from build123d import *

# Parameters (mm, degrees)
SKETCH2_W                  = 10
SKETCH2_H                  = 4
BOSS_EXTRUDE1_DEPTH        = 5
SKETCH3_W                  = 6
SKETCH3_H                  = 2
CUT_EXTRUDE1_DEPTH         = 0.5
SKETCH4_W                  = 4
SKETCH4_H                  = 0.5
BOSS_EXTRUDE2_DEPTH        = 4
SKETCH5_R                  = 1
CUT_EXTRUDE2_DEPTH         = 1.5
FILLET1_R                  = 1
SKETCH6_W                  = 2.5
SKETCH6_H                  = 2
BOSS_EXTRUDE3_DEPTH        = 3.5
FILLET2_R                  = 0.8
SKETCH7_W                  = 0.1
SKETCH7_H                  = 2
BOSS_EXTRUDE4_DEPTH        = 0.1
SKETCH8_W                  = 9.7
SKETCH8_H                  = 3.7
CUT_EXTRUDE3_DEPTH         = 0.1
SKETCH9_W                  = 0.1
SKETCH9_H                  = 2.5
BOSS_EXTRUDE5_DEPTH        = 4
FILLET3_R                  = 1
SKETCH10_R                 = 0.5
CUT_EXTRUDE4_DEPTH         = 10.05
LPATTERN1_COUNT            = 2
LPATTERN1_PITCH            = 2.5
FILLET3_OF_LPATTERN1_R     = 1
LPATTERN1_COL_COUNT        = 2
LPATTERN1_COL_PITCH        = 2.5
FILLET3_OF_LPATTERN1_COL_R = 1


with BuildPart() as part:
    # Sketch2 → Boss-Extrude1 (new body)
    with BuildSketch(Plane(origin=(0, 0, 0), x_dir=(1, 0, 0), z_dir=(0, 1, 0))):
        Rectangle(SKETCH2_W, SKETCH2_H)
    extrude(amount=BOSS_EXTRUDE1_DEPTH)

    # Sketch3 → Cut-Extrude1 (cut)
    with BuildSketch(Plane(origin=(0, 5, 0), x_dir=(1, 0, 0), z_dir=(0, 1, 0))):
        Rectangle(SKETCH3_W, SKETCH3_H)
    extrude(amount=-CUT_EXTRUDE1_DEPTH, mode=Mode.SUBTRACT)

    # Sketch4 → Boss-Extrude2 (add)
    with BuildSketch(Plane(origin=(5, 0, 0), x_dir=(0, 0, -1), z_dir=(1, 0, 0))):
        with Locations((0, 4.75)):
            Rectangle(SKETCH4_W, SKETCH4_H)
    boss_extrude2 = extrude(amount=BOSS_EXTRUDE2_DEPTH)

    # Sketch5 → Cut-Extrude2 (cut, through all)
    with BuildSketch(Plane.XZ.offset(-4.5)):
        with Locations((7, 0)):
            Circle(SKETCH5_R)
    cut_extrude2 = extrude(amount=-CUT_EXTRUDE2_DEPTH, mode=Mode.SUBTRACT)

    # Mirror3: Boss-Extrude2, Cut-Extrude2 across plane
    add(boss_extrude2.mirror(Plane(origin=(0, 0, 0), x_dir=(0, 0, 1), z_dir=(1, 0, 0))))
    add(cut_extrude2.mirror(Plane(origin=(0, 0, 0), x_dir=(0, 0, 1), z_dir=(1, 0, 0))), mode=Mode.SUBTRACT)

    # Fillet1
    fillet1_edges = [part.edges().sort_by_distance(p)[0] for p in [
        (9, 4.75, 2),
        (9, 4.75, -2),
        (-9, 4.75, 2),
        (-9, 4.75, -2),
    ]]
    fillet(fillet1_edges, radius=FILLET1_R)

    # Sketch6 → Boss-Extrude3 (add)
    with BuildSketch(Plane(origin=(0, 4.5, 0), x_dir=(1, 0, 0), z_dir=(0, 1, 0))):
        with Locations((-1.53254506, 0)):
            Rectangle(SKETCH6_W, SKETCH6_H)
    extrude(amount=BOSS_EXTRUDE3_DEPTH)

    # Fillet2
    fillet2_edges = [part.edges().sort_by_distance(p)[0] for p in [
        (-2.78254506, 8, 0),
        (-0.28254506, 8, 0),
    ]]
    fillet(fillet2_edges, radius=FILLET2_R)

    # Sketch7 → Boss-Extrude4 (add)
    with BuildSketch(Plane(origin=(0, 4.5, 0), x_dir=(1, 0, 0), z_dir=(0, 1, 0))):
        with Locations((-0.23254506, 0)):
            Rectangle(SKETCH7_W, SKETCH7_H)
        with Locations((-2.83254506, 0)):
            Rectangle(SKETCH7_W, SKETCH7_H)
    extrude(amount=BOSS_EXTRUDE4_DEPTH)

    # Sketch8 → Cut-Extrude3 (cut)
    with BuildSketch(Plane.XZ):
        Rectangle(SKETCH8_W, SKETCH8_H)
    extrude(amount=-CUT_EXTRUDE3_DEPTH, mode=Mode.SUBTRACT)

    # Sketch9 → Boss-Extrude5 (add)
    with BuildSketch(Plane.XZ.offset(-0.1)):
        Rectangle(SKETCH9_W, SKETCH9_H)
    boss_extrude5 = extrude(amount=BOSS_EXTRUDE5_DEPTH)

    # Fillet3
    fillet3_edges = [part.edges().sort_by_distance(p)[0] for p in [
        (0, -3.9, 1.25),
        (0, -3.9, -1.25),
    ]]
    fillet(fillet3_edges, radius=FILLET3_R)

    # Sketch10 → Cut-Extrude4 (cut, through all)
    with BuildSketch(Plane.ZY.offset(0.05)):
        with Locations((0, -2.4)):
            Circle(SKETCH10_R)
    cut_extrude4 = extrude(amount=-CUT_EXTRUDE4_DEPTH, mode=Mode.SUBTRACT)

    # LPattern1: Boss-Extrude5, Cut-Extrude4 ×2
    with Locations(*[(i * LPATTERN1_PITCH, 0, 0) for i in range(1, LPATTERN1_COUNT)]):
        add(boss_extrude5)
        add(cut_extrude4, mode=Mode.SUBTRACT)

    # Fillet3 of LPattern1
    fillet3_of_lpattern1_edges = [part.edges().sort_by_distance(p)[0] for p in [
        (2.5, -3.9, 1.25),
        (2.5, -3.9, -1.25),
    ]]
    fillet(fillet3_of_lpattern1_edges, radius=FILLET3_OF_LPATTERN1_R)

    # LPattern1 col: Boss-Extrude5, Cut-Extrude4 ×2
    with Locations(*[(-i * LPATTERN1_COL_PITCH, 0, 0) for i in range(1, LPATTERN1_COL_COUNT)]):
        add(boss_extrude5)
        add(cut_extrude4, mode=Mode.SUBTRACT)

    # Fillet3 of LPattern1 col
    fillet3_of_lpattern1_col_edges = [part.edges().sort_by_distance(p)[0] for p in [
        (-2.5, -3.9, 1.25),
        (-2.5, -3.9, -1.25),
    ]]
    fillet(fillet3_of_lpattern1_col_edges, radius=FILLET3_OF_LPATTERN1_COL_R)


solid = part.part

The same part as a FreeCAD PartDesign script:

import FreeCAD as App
import Part
import Sketcher

V = App.Vector


def edges_at(feature, points):
    """Names of the edges that pass closest to the given points."""
    edges = feature.Shape.Edges
    near = lambda p: min(range(len(edges)), key=lambda i: edges[i].distToShape(Part.Vertex(*p))[0])
    return sorted({f"Edge{near(p) + 1}" for p in points})


def add_polygon(sketch, points):
    """Adds a closed chain of lines whose ends are joined by coincident constraints."""
    first, n = sketch.GeometryCount, len(points)
    for a, b in zip(points, points[1:] + points[:1]):
        sketch.addGeometry(Part.LineSegment(App.Vector(*a, 0), App.Vector(*b, 0)), False)
    for i in range(n):
        sketch.addConstraint(Sketcher.Constraint("Coincident", first + i, 2, first + (i + 1) % n, 1))

doc = App.newDocument("Part")
params = doc.addObject("Spreadsheet::Sheet", "Params")
for row, (alias, value) in enumerate([
    ("sketch1_width", "10 mm"),
    ("sketch1_height", "4 mm"),
    ("pad1_length", "5 mm"),
    ("sketch2_width", "6 mm"),
    ("sketch2_height", "2 mm"),
    ("pocket1_length", "0.5 mm"),
    ("sketch3_height", "4 mm"),
    ("sketch3_width", "0.5 mm"),
    ("pad2_length", "4 mm"),
    ("sketch4_diameter", "2 mm"),
    ("fillet_radius", "1 mm"),
    ("sketch5_height", "2 mm"),
    ("sketch5_width", "2.5 mm"),
    ("pad3_length", "3.5 mm"),
    ("fillet2_radius", "0.8 mm"),
    ("sketch6_height", "2 mm"),
    ("sketch6_width", "0.1 mm"),
    ("pad4_length", "0.1 mm"),
    ("sketch7_width", "9.7 mm"),
    ("sketch7_height", "3.7 mm"),
    ("pocket3_length", "0.1 mm"),
    ("sketch8_width", "0.1 mm"),
    ("sketch8_height", "2.5 mm"),
    ("pad5_length", "4 mm"),
    ("fillet3_radius", "1 mm"),
    ("sketch9_diameter", "1 mm"),
    ("linearpattern_pitch", "2.5 mm"),
    ("fillet4_radius", "1 mm"),
    ("linearpattern2_pitch", "2.5 mm"),
    ("fillet5_radius", "1 mm"),
], start=1):
    params.set(f"A{row}", alias)
    params.set(f"B{row}", "=" + value)
    params.setAlias(f"B{row}", alias)

body = doc.addObject("PartDesign::Body", "Body")

# Sketch on XZ plane
sketch1 = body.newObject("Sketcher::SketchObject", "Sketch")
sketch1.AttachmentSupport = (doc.getObject("XZ_Plane"), [""])
sketch1.MapMode = "FlatFace"
add_polygon(sketch1, [(-5, -2), (-5, 2), (5, 2), (5, -2)])  # lines 0-3
sketch1.addConstraint(Sketcher.Constraint("Vertical", 0))
sketch1.addConstraint(Sketcher.Constraint("Horizontal", 1))
sketch1.addConstraint(Sketcher.Constraint("Vertical", 2))
sketch1.addConstraint(Sketcher.Constraint("Horizontal", 3))
sketch1.addConstraint(Sketcher.Constraint("Symmetric", 0, 2, 2, 2, -1, 1))
sketch1.addConstraint(Sketcher.Constraint("DistanceX", 1, 1, 1, 2, 10.0))
sketch1.addConstraint(Sketcher.Constraint("DistanceY", 0, 1, 0, 2, 4.0))
sketch1.setExpression("Constraints[9]", "Params.sketch1_width")
sketch1.setExpression("Constraints[10]", "Params.sketch1_height")
pad1 = body.newObject("PartDesign::Pad", "Pad")
pad1.Profile = sketch1
pad1.setExpression("Length", "Params.pad1_length")
pad1.Reversed = True

# Sketch on XZ plane
sketch2 = body.newObject("Sketcher::SketchObject", "Sketch001")
sketch2.AttachmentSupport = (doc.getObject("XZ_Plane"), [""])
sketch2.MapMode = "FlatFace"
sketch2.AttachmentOffset = App.Placement(V(0, 0, -5), App.Rotation())
add_polygon(sketch2, [(-3, -1), (-3, 1), (3, 1), (3, -1)])  # lines 0-3
sketch2.addConstraint(Sketcher.Constraint("Vertical", 0))
sketch2.addConstraint(Sketcher.Constraint("Horizontal", 1))
sketch2.addConstraint(Sketcher.Constraint("Vertical", 2))
sketch2.addConstraint(Sketcher.Constraint("Horizontal", 3))
sketch2.addConstraint(Sketcher.Constraint("Symmetric", 0, 2, 2, 2, -1, 1))
sketch2.addConstraint(Sketcher.Constraint("DistanceX", 1, 1, 1, 2, 6.0))
sketch2.addConstraint(Sketcher.Constraint("DistanceY", 0, 1, 0, 2, 2.0))
sketch2.setExpression("Constraints[9]", "Params.sketch2_width")
sketch2.setExpression("Constraints[10]", "Params.sketch2_height")
pocket1 = body.newObject("PartDesign::Pocket", "Pocket")
pocket1.Profile = sketch2
pocket1.setExpression("Length", "Params.pocket1_length")
pocket1.Reversed = True

# Sketch on YZ plane
sketch3 = body.newObject("Sketcher::SketchObject", "Sketch002")
sketch3.AttachmentSupport = (doc.getObject("YZ_Plane"), [""])
sketch3.MapMode = "FlatFace"
sketch3.AttachmentOffset = App.Placement(V(0, 0, 5), App.Rotation())
add_polygon(sketch3, [(5, 2), (4.5, 2), (4.5, -2), (5, -2)])  # lines 0-3
sketch3.addConstraint(Sketcher.Constraint("Horizontal", 0))
sketch3.addConstraint(Sketcher.Constraint("Vertical", 1))
sketch3.addConstraint(Sketcher.Constraint("Horizontal", 2))
sketch3.addConstraint(Sketcher.Constraint("Vertical", 3))
sketch3.addConstraint(Sketcher.Constraint("DistanceY", 1, 2, 1, 1, 4.0))
sketch3.addConstraint(Sketcher.Constraint("DistanceX", 0, 2, 0, 1, 0.5))
sketch3.addConstraint(Sketcher.Constraint("DistanceY", -1, 1, 0, 2, 2.0))
sketch3.addConstraint(Sketcher.Constraint("DistanceX", -1, 1, 2, 2, 5.0))
sketch3.setExpression("Constraints[8]", "Params.sketch3_height")
sketch3.setExpression("Constraints[9]", "Params.sketch3_width")
pad2 = body.newObject("PartDesign::Pad", "Pad001")
pad2.Profile = sketch3
pad2.setExpression("Length", "Params.pad2_length")

# Sketch on XZ plane
sketch4 = body.newObject("Sketcher::SketchObject", "Sketch003")
sketch4.AttachmentSupport = (doc.getObject("XZ_Plane"), [""])
sketch4.MapMode = "FlatFace"
sketch4.AttachmentOffset = App.Placement(V(0, 0, -4.5), App.Rotation())
sketch4.addGeometry(Part.Circle(V(7, 0, 0), V(0, 0, 1), 1), False)
sketch4.addConstraint(Sketcher.Constraint("PointOnObject", 0, 3, -1))
sketch4.addConstraint(Sketcher.Constraint("Diameter", 0, 2.0))
sketch4.addConstraint(Sketcher.Constraint("DistanceX", -1, 1, 0, 3, 7.0))
sketch4.setExpression("Constraints[1]", "Params.sketch4_diameter")
pocket2 = body.newObject("PartDesign::Pocket", "Pocket001")
pocket2.Profile = sketch4
pocket2.Type = "ThroughAll"
doc.recompute()

mirrored = body.newObject("PartDesign::Mirrored", "Mirrored")
mirrored.Originals = [pad2, pocket2]
mirrored.MirrorPlane = (doc.getObject("YZ_Plane"), [""])
body.Tip = mirrored
doc.recompute()

fillet = body.newObject("PartDesign::Fillet", "Fillet")
fillet.Base = (mirrored, edges_at(mirrored, [
    (9, 4.75, 2),
    (9, 4.75, -2),
    (-9, 4.75, 2),
    (-9, 4.75, -2),
]))
fillet.setExpression("Radius", "Params.fillet_radius")

# Sketch on XZ plane
sketch5 = body.newObject("Sketcher::SketchObject", "Sketch004")
sketch5.AttachmentSupport = (doc.getObject("XZ_Plane"), [""])
sketch5.MapMode = "FlatFace"
sketch5.AttachmentOffset = App.Placement(V(0, 0, -4.5), App.Rotation())
add_polygon(sketch5, [(-2.8, -1), (-2.8, 1), (-0.3, 1), (-0.3, -1)])  # lines 0-3
sketch5.addConstraint(Sketcher.Constraint("Vertical", 0))
sketch5.addConstraint(Sketcher.Constraint("Horizontal", 1))
sketch5.addConstraint(Sketcher.Constraint("Vertical", 2))
sketch5.addConstraint(Sketcher.Constraint("Horizontal", 3))
sketch5.addConstraint(Sketcher.Constraint("DistanceY", 0, 1, 0, 2, 2.0))
sketch5.addConstraint(Sketcher.Constraint("DistanceX", 1, 1, 1, 2, 2.5))
sketch5.addConstraint(Sketcher.Constraint("DistanceY", -1, 1, 0, 2, 1.0))
sketch5.addConstraint(Sketcher.Constraint("DistanceX", 0, 2, -1, 1, 2.782545))
sketch5.setExpression("Constraints[8]", "Params.sketch5_height")
sketch5.setExpression("Constraints[9]", "Params.sketch5_width")
pad3 = body.newObject("PartDesign::Pad", "Pad002")
pad3.Profile = sketch5
pad3.setExpression("Length", "Params.pad3_length")
pad3.Reversed = True
doc.recompute()

fillet2 = body.newObject("PartDesign::Fillet", "Fillet001")
fillet2.Base = (pad3, edges_at(pad3, [(-2.783, 8, 0), (-0.283, 8, 0)]))
fillet2.setExpression("Radius", "Params.fillet2_radius")

# Sketch on XZ plane
sketch6 = body.newObject("Sketcher::SketchObject", "Sketch005")
sketch6.AttachmentSupport = (doc.getObject("XZ_Plane"), [""])
sketch6.MapMode = "FlatFace"
sketch6.AttachmentOffset = App.Placement(V(0, 0, -4.5), App.Rotation())
add_polygon(sketch6, [(-0.28, -1), (-0.28, 1), (-0.18, 1), (-0.18, -1)])  # lines 0-3
add_polygon(sketch6, [(-2.88, -1), (-2.88, 1), (-2.78, 1), (-2.78, -1)])  # lines 4-7
sketch6.addConstraint(Sketcher.Constraint("Vertical", 0))
sketch6.addConstraint(Sketcher.Constraint("Horizontal", 1))
sketch6.addConstraint(Sketcher.Constraint("Vertical", 2))
sketch6.addConstraint(Sketcher.Constraint("Horizontal", 3))
sketch6.addConstraint(Sketcher.Constraint("Vertical", 4))
sketch6.addConstraint(Sketcher.Constraint("Horizontal", 5))
sketch6.addConstraint(Sketcher.Constraint("Vertical", 6))
sketch6.addConstraint(Sketcher.Constraint("Horizontal", 7))
sketch6.addConstraint(Sketcher.Constraint("Horizontal", 1, 2, 4, 2))
sketch6.addConstraint(Sketcher.Constraint("Horizontal", 3, 2, 6, 2))
sketch6.addConstraint(Sketcher.Constraint("Equal", 3, 5))
sketch6.addConstraint(Sketcher.Constraint("DistanceY", 0, 1, 0, 2, 2.0))
sketch6.addConstraint(Sketcher.Constraint("DistanceX", 1, 1, 1, 2, 0.1))
sketch6.addConstraint(Sketcher.Constraint("DistanceY", -1, 1, 0, 2, 1.0))
sketch6.addConstraint(Sketcher.Constraint("DistanceX", 4, 2, 0, 2, 2.6))
sketch6.addConstraint(Sketcher.Constraint("DistanceX", 0, 2, -1, 1, 0.282545))
sketch6.setExpression("Constraints[19]", "Params.sketch6_height")
sketch6.setExpression("Constraints[20]", "Params.sketch6_width")
pad4 = body.newObject("PartDesign::Pad", "Pad003")
pad4.Profile = sketch6
pad4.setExpression("Length", "Params.pad4_length")
pad4.Reversed = True

# Sketch on XZ plane
sketch7 = body.newObject("Sketcher::SketchObject", "Sketch006")
sketch7.AttachmentSupport = (doc.getObject("XZ_Plane"), [""])
sketch7.MapMode = "FlatFace"
add_polygon(sketch7, [(-4.8, 1.9), (-4.8, -1.9), (4.8, -1.9), (4.8, 1.9)])  # lines 0-3
sketch7.addConstraint(Sketcher.Constraint("Vertical", 0))
sketch7.addConstraint(Sketcher.Constraint("Horizontal", 1))
sketch7.addConstraint(Sketcher.Constraint("Vertical", 2))
sketch7.addConstraint(Sketcher.Constraint("Horizontal", 3))
sketch7.addConstraint(Sketcher.Constraint("Symmetric", 0, 2, 2, 2, -1, 1))
sketch7.addConstraint(Sketcher.Constraint("DistanceX", 1, 1, 1, 2, 9.7))
sketch7.addConstraint(Sketcher.Constraint("DistanceY", 0, 2, 0, 1, 3.7))
sketch7.setExpression("Constraints[9]", "Params.sketch7_width")
sketch7.setExpression("Constraints[10]", "Params.sketch7_height")
pocket3 = body.newObject("PartDesign::Pocket", "Pocket002")
pocket3.Profile = sketch7
pocket3.setExpression("Length", "Params.pocket3_length")

# Sketch on XZ plane
sketch8 = body.newObject("Sketcher::SketchObject", "Sketch007")
sketch8.AttachmentSupport = (doc.getObject("XZ_Plane"), [""])
sketch8.MapMode = "FlatFace"
sketch8.AttachmentOffset = App.Placement(V(0, 0, -0.1), App.Rotation())
add_polygon(sketch8, [(-0.05, 1.25), (-0.05, -1.25), (0.05, -1.25), (0.05, 1.25)])  # lines 0-3
sketch8.addConstraint(Sketcher.Constraint("Vertical", 0))
sketch8.addConstraint(Sketcher.Constraint("Horizontal", 1))
sketch8.addConstraint(Sketcher.Constraint("Vertical", 2))
sketch8.addConstraint(Sketcher.Constraint("Horizontal", 3))
sketch8.addConstraint(Sketcher.Constraint("Symmetric", 0, 2, 2, 2, -1, 1))
sketch8.addConstraint(Sketcher.Constraint("DistanceX", 1, 1, 1, 2, 0.1))
sketch8.addConstraint(Sketcher.Constraint("DistanceY", 0, 2, 0, 1, 2.5))
sketch8.setExpression("Constraints[9]", "Params.sketch8_width")
sketch8.setExpression("Constraints[10]", "Params.sketch8_height")
pad5 = body.newObject("PartDesign::Pad", "Pad004")
pad5.Profile = sketch8
pad5.setExpression("Length", "Params.pad5_length")
doc.recompute()

fillet3 = body.newObject("PartDesign::Fillet", "Fillet002")
fillet3.Base = (pad5, edges_at(pad5, [(0, -3.9, 1.25), (0, -3.9, -1.25)]))
fillet3.setExpression("Radius", "Params.fillet3_radius")

# Sketch on YZ plane
sketch9 = body.newObject("Sketcher::SketchObject", "Sketch008")
sketch9.AttachmentSupport = (doc.getObject("YZ_Plane"), [""])
sketch9.MapMode = "FlatFace"
sketch9.AttachmentOffset = App.Placement(V(0, 0, -0.05), App.Rotation())
sketch9.addGeometry(Part.Circle(V(-2.4, 0, 0), V(0, 0, 1), 0.5), False)
sketch9.addConstraint(Sketcher.Constraint("PointOnObject", 0, 3, -1))
sketch9.addConstraint(Sketcher.Constraint("Diameter", 0, 1.0))
sketch9.addConstraint(Sketcher.Constraint("DistanceX", 0, 3, -1, 1, 2.4))
sketch9.setExpression("Constraints[1]", "Params.sketch9_diameter")
pocket4 = body.newObject("PartDesign::Pocket", "Pocket003")
pocket4.Profile = sketch9
pocket4.Type = "ThroughAll"
pocket4.Reversed = True
doc.recompute()

linearpattern = body.newObject("PartDesign::LinearPattern", "LinearPattern")
linearpattern.Originals = [pad5, pocket4]
linearpattern.Direction = (doc.getObject("X_Axis"), [""])
linearpattern.Mode = "offset"
linearpattern.setExpression("Offset", "Params.linearpattern_pitch")
linearpattern.Occurrences = 2
body.Tip = linearpattern
doc.recompute()

fillet4 = body.newObject("PartDesign::Fillet", "Fillet003")
fillet4.Base = (linearpattern, edges_at(linearpattern, [(2.5, -3.9, 1.25), (2.5, -3.9, -1.25)]))
fillet4.setExpression("Radius", "Params.fillet4_radius")
doc.recompute()

linearpattern2 = body.newObject("PartDesign::LinearPattern", "LinearPattern001")
linearpattern2.Originals = [pad5, pocket4]
linearpattern2.Direction = (doc.getObject("X_Axis"), [""])
linearpattern2.Mode = "offset"
linearpattern2.setExpression("Offset", "Params.linearpattern2_pitch")
linearpattern2.Occurrences = 2
linearpattern2.Reversed = True
body.Tip = linearpattern2
doc.recompute()

fillet5 = body.newObject("PartDesign::Fillet", "Fillet004")
fillet5.Base = (linearpattern2, edges_at(linearpattern2, [(-2.5, -3.9, 1.25), (-2.5, -3.9, -1.25)]))
fillet5.setExpression("Radius", "Params.fillet5_radius")

doc.recompute()
